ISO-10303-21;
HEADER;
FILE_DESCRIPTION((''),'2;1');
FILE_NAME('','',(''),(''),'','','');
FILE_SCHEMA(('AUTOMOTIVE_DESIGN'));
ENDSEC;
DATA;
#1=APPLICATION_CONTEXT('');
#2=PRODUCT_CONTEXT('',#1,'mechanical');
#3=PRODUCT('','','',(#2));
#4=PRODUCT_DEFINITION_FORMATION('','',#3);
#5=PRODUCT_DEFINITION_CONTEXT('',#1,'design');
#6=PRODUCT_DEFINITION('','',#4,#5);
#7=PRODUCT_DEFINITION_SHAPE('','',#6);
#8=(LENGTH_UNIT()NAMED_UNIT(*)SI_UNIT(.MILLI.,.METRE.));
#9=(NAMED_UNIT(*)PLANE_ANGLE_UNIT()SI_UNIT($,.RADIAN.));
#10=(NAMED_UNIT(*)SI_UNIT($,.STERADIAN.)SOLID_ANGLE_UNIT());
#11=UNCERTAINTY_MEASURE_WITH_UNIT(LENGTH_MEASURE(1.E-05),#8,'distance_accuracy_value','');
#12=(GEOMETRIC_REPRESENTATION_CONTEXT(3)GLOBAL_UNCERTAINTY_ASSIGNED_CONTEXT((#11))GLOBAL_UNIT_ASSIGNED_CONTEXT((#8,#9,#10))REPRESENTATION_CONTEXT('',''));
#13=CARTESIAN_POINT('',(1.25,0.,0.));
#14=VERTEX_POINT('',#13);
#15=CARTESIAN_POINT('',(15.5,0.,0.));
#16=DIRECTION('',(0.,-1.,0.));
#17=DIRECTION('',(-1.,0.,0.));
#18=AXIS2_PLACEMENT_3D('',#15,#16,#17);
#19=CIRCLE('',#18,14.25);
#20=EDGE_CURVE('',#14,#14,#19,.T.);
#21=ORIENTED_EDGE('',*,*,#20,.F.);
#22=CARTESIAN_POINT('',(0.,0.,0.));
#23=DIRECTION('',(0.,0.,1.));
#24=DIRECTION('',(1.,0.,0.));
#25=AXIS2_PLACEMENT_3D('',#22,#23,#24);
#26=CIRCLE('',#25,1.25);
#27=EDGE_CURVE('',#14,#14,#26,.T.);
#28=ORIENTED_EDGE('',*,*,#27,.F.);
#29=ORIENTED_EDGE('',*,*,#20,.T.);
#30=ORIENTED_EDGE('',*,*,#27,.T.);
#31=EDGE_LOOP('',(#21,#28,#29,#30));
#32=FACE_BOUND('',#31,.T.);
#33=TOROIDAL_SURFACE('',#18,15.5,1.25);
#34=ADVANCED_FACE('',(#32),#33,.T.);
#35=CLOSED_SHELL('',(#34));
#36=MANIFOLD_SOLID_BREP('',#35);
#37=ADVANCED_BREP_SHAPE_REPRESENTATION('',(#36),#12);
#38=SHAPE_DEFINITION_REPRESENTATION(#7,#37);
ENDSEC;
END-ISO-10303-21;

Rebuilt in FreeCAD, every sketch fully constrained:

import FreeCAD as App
import Part
import Sketcher
from FreeCAD import Vector

doc = App.newDocument("Part")
body = doc.addObject("PartDesign::Body", "Body")

sketch1 = body.newObject("Sketcher::SketchObject", "Sketch")
sketch1.AttachmentSupport = (doc.getObject("XY_Plane"), [""])
sketch1.MapMode = "FlatFace"
sketch1.addGeometry(Part.Circle(Vector(0, 0, 0), Vector(0, 0, 1), 1.2), False)
sketch1.addGeometry(Part.LineSegment(Vector(15.5, 0, 0), Vector(15.5, -10, 0)), True)
sketch1.addConstraint(Sketcher.Constraint("Vertical", 1))
sketch1.addConstraint(Sketcher.Constraint("Coincident", 0, 3, -1, 1))
sketch1.addConstraint(Sketcher.Constraint("PointOnObject", 1, 1, -1))
sketch1.addConstraint(Sketcher.Constraint("Diameter", 0, 2.5))
sketch1.addConstraint(Sketcher.Constraint("DistanceY", 1, 2, 1, 1, 10.0))
sketch1.addConstraint(Sketcher.Constraint("DistanceX", -1, 1, 1, 1, 15.5))
revolution = body.newObject("PartDesign::Revolution", "Revolution")
revolution.Profile = sketch1
revolution.ReferenceAxis = (sketch1, ["Axis0"])
revolution.Angle = 360

doc.recompute()
